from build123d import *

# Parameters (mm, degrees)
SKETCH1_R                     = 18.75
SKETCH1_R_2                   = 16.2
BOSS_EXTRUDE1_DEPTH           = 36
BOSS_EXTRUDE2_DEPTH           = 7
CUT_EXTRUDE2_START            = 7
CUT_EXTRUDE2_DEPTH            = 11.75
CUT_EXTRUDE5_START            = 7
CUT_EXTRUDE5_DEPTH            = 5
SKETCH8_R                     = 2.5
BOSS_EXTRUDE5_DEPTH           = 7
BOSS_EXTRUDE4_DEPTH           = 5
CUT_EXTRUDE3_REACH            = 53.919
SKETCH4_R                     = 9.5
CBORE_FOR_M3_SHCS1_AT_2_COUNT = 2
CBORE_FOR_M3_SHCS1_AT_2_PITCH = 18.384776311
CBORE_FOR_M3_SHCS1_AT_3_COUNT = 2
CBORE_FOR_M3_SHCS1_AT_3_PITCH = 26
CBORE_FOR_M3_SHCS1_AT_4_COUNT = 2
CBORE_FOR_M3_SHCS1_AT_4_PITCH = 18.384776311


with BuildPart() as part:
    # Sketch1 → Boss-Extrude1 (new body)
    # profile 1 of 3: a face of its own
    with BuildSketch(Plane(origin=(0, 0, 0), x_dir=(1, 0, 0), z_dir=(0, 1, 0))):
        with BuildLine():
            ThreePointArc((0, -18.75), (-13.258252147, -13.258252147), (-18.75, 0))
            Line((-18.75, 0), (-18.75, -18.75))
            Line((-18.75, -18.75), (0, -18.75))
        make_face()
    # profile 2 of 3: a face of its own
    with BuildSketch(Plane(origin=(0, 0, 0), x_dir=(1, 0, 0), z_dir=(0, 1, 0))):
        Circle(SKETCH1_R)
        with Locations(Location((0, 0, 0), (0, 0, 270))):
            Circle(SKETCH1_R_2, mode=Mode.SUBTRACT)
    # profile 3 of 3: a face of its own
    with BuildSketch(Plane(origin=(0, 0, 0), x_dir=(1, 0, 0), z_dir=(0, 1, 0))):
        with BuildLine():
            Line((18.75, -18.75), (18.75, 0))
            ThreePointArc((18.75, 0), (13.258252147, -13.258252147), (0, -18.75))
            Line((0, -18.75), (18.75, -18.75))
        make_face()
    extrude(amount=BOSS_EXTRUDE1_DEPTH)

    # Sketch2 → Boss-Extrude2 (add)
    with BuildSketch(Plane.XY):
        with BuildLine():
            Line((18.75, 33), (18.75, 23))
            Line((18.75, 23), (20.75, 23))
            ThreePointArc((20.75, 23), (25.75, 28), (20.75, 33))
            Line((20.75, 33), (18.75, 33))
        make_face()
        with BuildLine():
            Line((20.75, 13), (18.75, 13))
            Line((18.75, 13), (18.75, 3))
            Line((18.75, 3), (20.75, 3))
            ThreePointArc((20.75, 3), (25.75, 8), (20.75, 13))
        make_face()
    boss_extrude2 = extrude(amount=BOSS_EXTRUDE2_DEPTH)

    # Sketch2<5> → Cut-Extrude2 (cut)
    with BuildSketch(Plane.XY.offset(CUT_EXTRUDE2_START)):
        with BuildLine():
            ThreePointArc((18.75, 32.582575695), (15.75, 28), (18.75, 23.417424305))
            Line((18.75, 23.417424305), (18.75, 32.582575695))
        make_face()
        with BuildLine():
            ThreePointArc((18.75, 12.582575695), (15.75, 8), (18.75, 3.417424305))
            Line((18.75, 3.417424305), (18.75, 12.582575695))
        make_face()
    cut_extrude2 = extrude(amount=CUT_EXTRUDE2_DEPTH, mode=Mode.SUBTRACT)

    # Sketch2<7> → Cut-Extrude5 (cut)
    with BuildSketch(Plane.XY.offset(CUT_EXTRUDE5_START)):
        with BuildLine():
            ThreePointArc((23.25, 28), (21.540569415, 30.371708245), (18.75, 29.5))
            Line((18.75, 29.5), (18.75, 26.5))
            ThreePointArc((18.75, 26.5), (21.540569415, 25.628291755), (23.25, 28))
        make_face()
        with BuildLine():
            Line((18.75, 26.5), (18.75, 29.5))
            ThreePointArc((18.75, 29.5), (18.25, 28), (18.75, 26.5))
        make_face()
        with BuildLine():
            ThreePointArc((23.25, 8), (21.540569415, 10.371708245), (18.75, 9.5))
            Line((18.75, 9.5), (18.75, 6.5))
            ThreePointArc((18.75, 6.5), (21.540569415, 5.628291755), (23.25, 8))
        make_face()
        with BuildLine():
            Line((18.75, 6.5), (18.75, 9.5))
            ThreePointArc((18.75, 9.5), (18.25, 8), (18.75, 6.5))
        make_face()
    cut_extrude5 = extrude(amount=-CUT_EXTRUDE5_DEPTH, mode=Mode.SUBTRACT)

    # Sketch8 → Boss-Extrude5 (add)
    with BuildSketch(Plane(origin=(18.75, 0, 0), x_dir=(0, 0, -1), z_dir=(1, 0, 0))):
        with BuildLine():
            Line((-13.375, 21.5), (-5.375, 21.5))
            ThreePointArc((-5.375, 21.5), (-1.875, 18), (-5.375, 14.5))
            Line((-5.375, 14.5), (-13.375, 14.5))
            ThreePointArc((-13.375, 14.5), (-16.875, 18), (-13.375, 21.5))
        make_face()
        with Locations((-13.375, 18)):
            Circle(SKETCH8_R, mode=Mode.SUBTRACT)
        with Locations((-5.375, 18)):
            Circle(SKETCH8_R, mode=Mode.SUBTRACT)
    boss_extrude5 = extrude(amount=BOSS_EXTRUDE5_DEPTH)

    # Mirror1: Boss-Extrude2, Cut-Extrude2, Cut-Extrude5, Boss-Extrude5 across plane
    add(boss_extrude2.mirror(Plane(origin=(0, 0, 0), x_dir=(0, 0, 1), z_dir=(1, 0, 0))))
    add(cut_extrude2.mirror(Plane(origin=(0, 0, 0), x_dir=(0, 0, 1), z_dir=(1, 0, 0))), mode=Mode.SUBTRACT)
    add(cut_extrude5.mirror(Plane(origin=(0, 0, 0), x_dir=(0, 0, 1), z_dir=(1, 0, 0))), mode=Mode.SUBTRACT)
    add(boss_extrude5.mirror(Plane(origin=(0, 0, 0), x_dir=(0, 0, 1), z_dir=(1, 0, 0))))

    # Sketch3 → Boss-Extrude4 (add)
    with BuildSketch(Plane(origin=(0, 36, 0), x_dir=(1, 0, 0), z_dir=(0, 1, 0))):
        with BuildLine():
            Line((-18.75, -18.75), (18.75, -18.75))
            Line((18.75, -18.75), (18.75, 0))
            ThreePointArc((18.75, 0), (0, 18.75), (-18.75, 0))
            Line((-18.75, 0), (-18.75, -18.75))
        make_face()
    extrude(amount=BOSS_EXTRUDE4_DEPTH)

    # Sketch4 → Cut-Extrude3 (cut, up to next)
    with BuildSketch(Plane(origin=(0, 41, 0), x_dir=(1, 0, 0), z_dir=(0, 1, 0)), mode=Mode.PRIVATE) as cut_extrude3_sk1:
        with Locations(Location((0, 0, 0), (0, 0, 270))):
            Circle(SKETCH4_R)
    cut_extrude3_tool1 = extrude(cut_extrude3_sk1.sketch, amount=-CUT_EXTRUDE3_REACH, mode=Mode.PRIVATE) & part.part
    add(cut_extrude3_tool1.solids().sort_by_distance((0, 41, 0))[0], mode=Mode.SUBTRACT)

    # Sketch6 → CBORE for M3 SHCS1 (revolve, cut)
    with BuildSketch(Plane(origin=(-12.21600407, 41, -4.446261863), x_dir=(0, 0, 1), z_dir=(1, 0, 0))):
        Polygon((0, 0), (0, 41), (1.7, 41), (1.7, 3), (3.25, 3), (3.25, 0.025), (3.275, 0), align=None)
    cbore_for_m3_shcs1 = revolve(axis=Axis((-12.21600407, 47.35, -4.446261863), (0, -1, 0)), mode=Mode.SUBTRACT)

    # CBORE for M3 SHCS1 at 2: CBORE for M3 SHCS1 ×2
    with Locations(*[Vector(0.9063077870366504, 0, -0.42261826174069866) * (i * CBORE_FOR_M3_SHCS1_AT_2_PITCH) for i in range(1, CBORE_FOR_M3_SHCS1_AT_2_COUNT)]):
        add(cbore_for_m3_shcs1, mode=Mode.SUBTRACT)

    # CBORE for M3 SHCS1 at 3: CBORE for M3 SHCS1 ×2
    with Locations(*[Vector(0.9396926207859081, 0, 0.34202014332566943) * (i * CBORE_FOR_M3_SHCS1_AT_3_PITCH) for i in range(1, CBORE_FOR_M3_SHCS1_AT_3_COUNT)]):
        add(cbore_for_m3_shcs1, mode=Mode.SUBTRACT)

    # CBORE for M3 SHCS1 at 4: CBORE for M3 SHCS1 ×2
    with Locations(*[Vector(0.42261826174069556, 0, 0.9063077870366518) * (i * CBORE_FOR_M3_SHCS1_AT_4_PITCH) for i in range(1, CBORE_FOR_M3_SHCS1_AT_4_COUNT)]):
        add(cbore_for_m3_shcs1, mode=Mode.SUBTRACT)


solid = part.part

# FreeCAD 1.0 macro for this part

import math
import FreeCAD as App
import Part
import Sketcher
Q = App.Units.Quantity

doc = App.newDocument("Part")
body = doc.addObject("PartDesign::Body", "Body")

sketch1 = doc.addObject("Sketcher::SketchObject", "Sketch")
body.addObject(sketch1)
sketch1.AttachmentSupport = (doc.XZ_Plane, [""])
sketch1.MapMode = "FlatFace"
sketch1.addGeometry(Part.LineSegment(App.Vector(-19, 0, 0), App.Vector(-19, 19, 0)), False)
sketch1.addGeometry(Part.LineSegment(App.Vector(-19, 19, 0), App.Vector(19, 19, 0)), False)
sketch1.addGeometry(Part.LineSegment(App.Vector(19, 19, 0), App.Vector(19, 0, 0)), False)
sketch1.addGeometry(Part.ArcOfCircle(Part.Circle(App.Vector(0, 0, 0), App.Vector(0, 0, 1), 19), math.radians(180), math.radians(360)), False)
sketch1.addGeometry(Part.Circle(App.Vector(0, 0, 0), App.Vector(0, 0, 1), 16), False)
sketch1.addConstraint(Sketcher.Constraint("Coincident", 0, 2, 1, 1))
sketch1.addConstraint(Sketcher.Constraint("Coincident", 1, 2, 2, 1))
sketch1.addConstraint(Sketcher.Constraint("Tangent", 2, 2, 3, 2))
sketch1.addConstraint(Sketcher.Constraint("Tangent", 3, 1, 0, 1))
sketch1.addConstraint(Sketcher.Constraint("Vertical", 0))
sketch1.addConstraint(Sketcher.Constraint("Horizontal", 1))
sketch1.addConstraint(Sketcher.Constraint("Vertical", 2))
sketch1.addConstraint(Sketcher.Constraint("Coincident", 3, 3, -1, 1))
sketch1.addConstraint(Sketcher.Constraint("Coincident", 4, 3, -1, 1))
sketch1.addConstraint(Sketcher.Constraint("Diameter", 4, 32.4))
sketch1.addConstraint(Sketcher.Constraint("Radius", 3, 18.75))
sketch1.addConstraint(Sketcher.Constraint("DistanceY", 0, 1, 0, 2, 18.75))
pad1 = doc.addObject("PartDesign::Pad", "Pad")
body.addObject(pad1)
pad1.Profile = sketch1
pad1.Length = 36
pad1.Reversed = True

sketch2 = doc.addObject("Sketcher::SketchObject", "Sketch001")
body.addObject(sketch2)
sketch2.AttachmentSupport = (doc.XY_Plane, [""])
sketch2.MapMode = "FlatFace"
sketch2.addGeometry(Part.LineSegment(App.Vector(18.8, 33, 0), App.Vector(18.8, 23, 0)), False)
sketch2.addGeometry(Part.LineSegment(App.Vector(18.8, 23, 0), App.Vector(20.8, 23, 0)), False)
sketch2.addGeometry(Part.ArcOfCircle(Part.Circle(App.Vector(20.8, 28, 0), App.Vector(0, 0, 1), 5), math.radians(-90), math.radians(90)), False)
sketch2.addGeometry(Part.LineSegment(App.Vector(20.8, 33, 0), App.Vector(18.8, 33, 0)), False)
sketch2.addGeometry(Part.LineSegment(App.Vector(20.8, 13, 0), App.Vector(18.8, 13, 0)), False)
sketch2.addGeometry(Part.LineSegment(App.Vector(18.8, 13, 0), App.Vector(18.8, 3, 0)), False)
sketch2.addGeometry(Part.LineSegment(App.Vector(18.8, 3, 0), App.Vector(20.8, 3, 0)), False)
sketch2.addGeometry(Part.ArcOfCircle(Part.Circle(App.Vector(20.8, 8, 0), App.Vector(0, 0, 1), 5), math.radians(-90), math.radians(90)), False)
sketch2.addConstraint(Sketcher.Constraint("Coincident", 0, 2, 1, 1))
sketch2.addConstraint(Sketcher.Constraint("Tangent", 1, 2, 2, 1))
sketch2.addConstraint(Sketcher.Constraint("Tangent", 2, 2, 3, 1))
sketch2.addConstraint(Sketcher.Constraint("Coincident", 3, 2, 0, 1))
sketch2.addConstraint(Sketcher.Constraint("Coincident", 4, 2, 5, 1))
sketch2.addConstraint(Sketcher.Constraint("Coincident", 5, 2, 6, 1))
sketch2.addConstraint(Sketcher.Constraint("Tangent", 6, 2, 7, 1))
sketch2.addConstraint(Sketcher.Constraint("Tangent", 7, 2, 4, 1))
sketch2.addConstraint(Sketcher.Constraint("Vertical", 0))
sketch2.addConstraint(Sketcher.Constraint("Horizontal", 1))
sketch2.addConstraint(Sketcher.Constraint("Horizontal", 3))
sketch2.addConstraint(Sketcher.Constraint("Horizontal", 4))
sketch2.addConstraint(Sketcher.Constraint("Vertical", 5))
sketch2.addConstraint(Sketcher.Constraint("Horizontal", 6))
sketch2.addConstraint(Sketcher.Constraint("Equal", 2, 7))
sketch2.addConstraint(Sketcher.Constraint("Vertical", 2, 3, 7, 3))
sketch2.addConstraint(Sketcher.Constraint("Vertical", 3, 2, 4, 2))
sketch2.addConstraint(Sketcher.Constraint("Radius", 2, 5.0))
sketch2.addConstraint(Sketcher.Constraint("DistanceX", 1, 1, 1, 2, 2.0))
sketch2.addConstraint(Sketcher.Constraint("DistanceY", -1, 1, 2, 3, 28.0))
sketch2.addConstraint(Sketcher.Constraint("DistanceY", -1, 1, 7, 3, 8.0))
sketch2.addConstraint(Sketcher.Constraint("DistanceX", -1, 1, 2, 3, 20.75))
pad2 = doc.addObject("PartDesign::Pad", "Pad001")
body.addObject(pad2)
pad2.Profile = sketch2
pad2.Length = 7

sketch3 = doc.addObject("Sketcher::SketchObject", "Sketch002")
body.addObject(sketch3)
sketch3.AttachmentSupport = (doc.XY_Plane, [""])
sketch3.MapMode = "FlatFace"
sketch3.AttachmentOffset = App.Placement(App.Vector(0, 0, 7), App.Rotation())
sketch3.addGeometry(Part.ArcOfCircle(Part.Circle(App.Vector(21, 28, 0), App.Vector(0, 0, 1), 5), math.radians(114), math.radians(246)), False)
sketch3.addGeometry(Part.LineSegment(App.Vector(19, 23, 0), App.Vector(19, 33, 0)), False)
sketch3.addGeometry(Part.ArcOfCircle(Part.Circle(App.Vector(21, 8, 0), App.Vector(0, 0, 1), 5), math.radians(114), math.radians(246)), False)
sketch3.addGeometry(Part.LineSegment(App.Vector(19, 3, 0), App.Vector(19, 13, 0)), False)
sketch3.addConstraint(Sketcher.Constraint("Coincident", 0, 1, 1, 2))
sketch3.addConstraint(Sketcher.Constraint("Coincident", 1, 1, 0, 2))
sketch3.addConstraint(Sketcher.Constraint("Coincident", 2, 1, 3, 2))
sketch3.addConstraint(Sketcher.Constraint("Coincident", 3, 1, 2, 2))
sketch3.addConstraint(Sketcher.Constraint("Vertical", 1))
sketch3.addConstraint(Sketcher.Constraint("Vertical", 3))
sketch3.addConstraint(Sketcher.Constraint("Equal", 0, 2))
sketch3.addConstraint(Sketcher.Constraint("Vertical", 0, 3, 2, 3))
sketch3.addConstraint(Sketcher.Constraint("Vertical", 1, 1, 2, 1))
sketch3.addConstraint(Sketcher.Constraint("Radius", 0, 5.0))
sketch3.addConstraint(Sketcher.Constraint("DistanceY", -1, 1, 0, 3, 28.0))
sketch3.addConstraint(Sketcher.Constraint("DistanceY", -1, 1, 2, 3, 8.0))
sketch3.addConstraint(Sketcher.Constraint("DistanceX", 0, 1, 0, 3, 2.0))
sketch3.addConstraint(Sketcher.Constraint("DistanceX", -1, 1, 0, 3, 20.75))
pocket1 = doc.addObject("PartDesign::Pocket", "Pocket")
body.addObject(pocket1)
pocket1.Profile = sketch3
pocket1.Length = 11.75
pocket1.Reversed = True

sketch4 = doc.addObject("Sketcher::SketchObject", "Sketch003")
body.addObject(sketch4)
sketch4.AttachmentSupport = (doc.XY_Plane, [""])
sketch4.MapMode = "FlatFace"
sketch4.AttachmentOffset = App.Placement(App.Vector(0, 0, 7), App.Rotation())
sketch4.addGeometry(Part.ArcOfCircle(Part.Circle(App.Vector(20.8, 28, 0), App.Vector(0, 0, 1), 2.5), math.radians(0), math.radians(143)), False)
sketch4.addGeometry(Part.ArcOfCircle(Part.Circle(App.Vector(20.8, 28, 0), App.Vector(0, 0, 1), 2.5), math.radians(143), math.radians(217)), False)
sketch4.addGeometry(Part.ArcOfCircle(Part.Circle(App.Vector(20.8, 28, 0), App.Vector(0, 0, 1), 2.5), math.radians(-143), math.radians(0)), False)
sketch4.addGeometry(Part.ArcOfCircle(Part.Circle(App.Vector(20.8, 8, 0), App.Vector(0, 0, 1), 2.5), math.radians(0), math.radians(143)), False)
sketch4.addGeometry(Part.ArcOfCircle(Part.Circle(App.Vector(20.8, 8, 0), App.Vector(0, 0, 1), 2.5), math.radians(143), math.radians(217)), False)
sketch4.addGeometry(Part.ArcOfCircle(Part.Circle(App.Vector(20.8, 8, 0), App.Vector(0, 0, 1), 2.5), math.radians(-143), math.radians(0)), False)
sketch4.addConstraint(Sketcher.Constraint("Tangent", 0, 2, 1, 1))
sketch4.addConstraint(Sketcher.Constraint("Tangent", 1, 2, 2, 1))
sketch4.addConstraint(Sketcher.Constraint("Tangent", 2, 2, 0, 1))
sketch4.addConstraint(Sketcher.Constraint("Tangent", 3, 2, 4, 1))
sketch4.addConstraint(Sketcher.Constraint("Tangent", 4, 2, 5, 1))
sketch4.addConstraint(Sketcher.Constraint("Tangent", 5, 2, 3, 1))
sketch4.addConstraint(Sketcher.Constraint("Equal", 2, 3))
sketch4.addConstraint(Sketcher.Constraint("Horizontal", 1, 3, 2, 2))
sketch4.addConstraint(Sketcher.Constraint("Horizontal", 4, 3, 5, 2))
sketch4.addConstraint(Sketcher.Constraint("Vertical", 2, 3, 3, 3))
sketch4.addConstraint(Sketcher.Constraint("Vertical", 0, 2, 1, 2))
sketch4.addConstraint(Sketcher.Constraint("Vertical", 1, 2, 3, 2))
sketch4.addConstraint(Sketcher.Constraint("Vertical", 3, 2, 4, 2))
sketch4.addConstraint(Sketcher.Constraint("Radius", 0, 2.5))
sketch4.addConstraint(Sketcher.Constraint("DistanceY", -1, 1, 0, 3, 28.0))
sketch4.addConstraint(Sketcher.Constraint("DistanceY", -1, 1, 3, 3, 8.0))
sketch4.addConstraint(Sketcher.Constraint("DistanceX", 0, 2, 0, 3, 2.0))
sketch4.addConstraint(Sketcher.Constraint("DistanceX", -1, 1, 0, 3, 20.75))
pocket2 = doc.addObject("PartDesign::Pocket", "Pocket001")
body.addObject(pocket2)
pocket2.Profile = sketch4
pocket2.Length = 5

sketch5 = doc.addObject("Sketcher::SketchObject", "Sketch004")
body.addObject(sketch5)
sketch5.AttachmentSupport = (doc.YZ_Plane, [""])
sketch5.MapMode = "FlatFace"
sketch5.AttachmentOffset = App.Placement(App.Vector(0, 0, 18.75), App.Rotation())
sketch5.addGeometry(Part.LineSegment(App.Vector(21.5, 5.4, 0), App.Vector(21.5, 13.4, 0)), False)
sketch5.addGeometry(Part.ArcOfCircle(Part.Circle(App.Vector(18, 13.4, 0), App.Vector(0, 0, 1), 3.5), math.radians(0), math.radians(180)), False)
sketch5.addGeometry(Part.LineSegment(App.Vector(14.5, 13.4, 0), App.Vector(14.5, 5.4, 0)), False)
sketch5.addGeometry(Part.ArcOfCircle(Part.Circle(App.Vector(18, 5.4, 0), App.Vector(0, 0, 1), 3.5), math.radians(180), math.radians(360)), False)
sketch5.addGeometry(Part.Circle(App.Vector(18, 5.4, 0), App.Vector(0, 0, 1), 2.5), False)
sketch5.addGeometry(Part.Circle(App.Vector(18, 13.4, 0), App.Vector(0, 0, 1), 2.5), False)
sketch5.addConstraint(Sketcher.Constraint("Tangent", 0, 2, 1, 1))
sketch5.addConstraint(Sketcher.Constraint("Tangent", 1, 2, 2, 1))
sketch5.addConstraint(Sketcher.Constraint("Tangent", 2, 2, 3, 1))
sketch5.addConstraint(Sketcher.Constraint("Tangent", 3, 2, 0, 1))
sketch5.addConstraint(Sketcher.Constraint("Vertical", 0))
sketch5.addConstraint(Sketcher.Constraint("Vertical", 2))
sketch5.addConstraint(Sketcher.Constraint("Coincident", 4, 3, 3, 3))
sketch5.addConstraint(Sketcher.Constraint("Coincident", 5, 3, 1, 3))
sketch5.addConstraint(Sketcher.Constraint("Equal", 4, 5))
sketch5.addConstraint(Sketcher.Constraint("Diameter", 4, 5.0))
sketch5.addConstraint(Sketcher.Constraint("Radius", 1, 3.5))
sketch5.addConstraint(Sketcher.Constraint("DistanceY", 0, 1, 0, 2, 8.0))
sketch5.addConstraint(Sketcher.Constraint("DistanceX", -1, 1, 1, 3, 18.0))
sketch5.addConstraint(Sketcher.Constraint("DistanceY", -1, 1, 1, 3, 13.375))
pad3 = doc.addObject("PartDesign::Pad", "Pad002")
body.addObject(pad3)
pad3.Profile = sketch5
pad3.Length = 7
doc.recompute()

mirrored = doc.addObject("PartDesign::Mirrored", "Mirrored")
body.addObject(mirrored)
mirrored.Originals = [pad2, pocket1, pocket2, pad3]
mirrored.MirrorPlane = (doc.YZ_Plane, [""])
body.Tip = mirrored

sketch6 = doc.addObject("Sketcher::SketchObject", "Sketch005")
body.addObject(sketch6)
sketch6.AttachmentSupport = (doc.XZ_Plane, [""])
sketch6.MapMode = "FlatFace"
sketch6.AttachmentOffset = App.Placement(App.Vector(0, 0, -36), App.Rotation())
sketch6.addGeometry(Part.LineSegment(App.Vector(-19, 19, 0), App.Vector(19, 19, 0)), False)
sketch6.addGeometry(Part.LineSegment(App.Vector(19, 19, 0), App.Vector(19, 0, 0)), False)
sketch6.addGeometry(Part.ArcOfCircle(Part.Circle(App.Vector(0, 0, 0), App.Vector(0, 0, 1), 19), math.radians(180), math.radians(360)), False)
sketch6.addGeometry(Part.LineSegment(App.Vector(-19, 0, 0), App.Vector(-19, 19, 0)), False)
sketch6.addConstraint(Sketcher.Constraint("Coincident", 0, 2, 1, 1))
sketch6.addConstraint(Sketcher.Constraint("Tangent", 1, 2, 2, 2))
sketch6.addConstraint(Sketcher.Constraint("Tangent", 2, 1, 3, 1))
sketch6.addConstraint(Sketcher.Constraint("Coincident", 3, 2, 0, 1))
sketch6.addConstraint(Sketcher.Constraint("Horizontal", 0))
sketch6.addConstraint(Sketcher.Constraint("Vertical", 1))
sketch6.addConstraint(Sketcher.Constraint("Vertical", 3))
sketch6.addConstraint(Sketcher.Constraint("Coincident", 2, 3, -1, 1))
sketch6.addConstraint(Sketcher.Constraint("Radius", 2, 18.75))
sketch6.addConstraint(Sketcher.Constraint("DistanceY", 1, 2, 1, 1, 18.75))
pad4 = doc.addObject("PartDesign::Pad", "Pad003")
body.addObject(pad4)
pad4.Profile = sketch6
pad4.Length = 5
pad4.Reversed = True

sketch7 = doc.addObject("Sketcher::SketchObject", "Sketch006")
body.addObject(sketch7)
sketch7.AttachmentSupport = (doc.XZ_Plane, [""])
sketch7.MapMode = "FlatFace"
sketch7.AttachmentOffset = App.Placement(App.Vector(0, 0, -41), App.Rotation())
sketch7.addGeometry(Part.Circle(App.Vector(0, 0, 0), App.Vector(0, 0, 1), 10), False)
sketch7.addConstraint(Sketcher.Constraint("Coincident", 0, 3, -1, 1))
sketch7.addConstraint(Sketcher.Constraint("Diameter", 0, 19.0))
pocket3 = doc.addObject("PartDesign::Pocket", "Pocket002")
body.addObject(pocket3)
pocket3.Profile = sketch7
pocket3.Type = "UpToFirst"
pocket3.Reversed = True

sketch8 = doc.addObject("Sketcher::SketchObject", "Sketch007")
body.addObject(sketch8)
sketch8.AttachmentSupport = (doc.YZ_Plane, [""])
sketch8.MapMode = "FlatFace"
sketch8.AttachmentOffset = App.Placement(App.Vector(0, 0, -12.216004), App.Rotation())
sketch8.addGeometry(Part.LineSegment(App.Vector(0, -4.446, 0), App.Vector(41, -4.446, 0)), False)
sketch8.addGeometry(Part.LineSegment(App.Vector(41, -4.446, 0), App.Vector(41, -1.171, 0)), False)
sketch8.addGeometry(Part.LineSegment(App.Vector(41, -1.171, 0), App.Vector(40.975, -1.196, 0)), False)
sketch8.addGeometry(Part.LineSegment(App.Vector(40.975, -1.196, 0), App.Vector(38, -1.196, 0)), False)
sketch8.addGeometry(Part.LineSegment(App.Vector(38, -1.196, 0), App.Vector(38, -2.746, 0)), False)
sketch8.addGeometry(Part.LineSegment(App.Vector(38, -2.746, 0), App.Vector(0, -2.746, 0)), False)
sketch8.addGeometry(Part.LineSegment(App.Vector(0, -2.746, 0), App.Vector(0, -4.446, 0)), False)
sketch8.addGeometry(Part.LineSegment(App.Vector(41, -4.446, 0), App.Vector(0, -4.446, 0)), True)
sketch8.addConstraint(Sketcher.Constraint("Coincident", 0, 2, 1, 1))
sketch8.addConstraint(Sketcher.Constraint("Coincident", 1, 2, 2, 1))
sketch8.addConstraint(Sketcher.Constraint("Coincident", 2, 2, 3, 1))
sketch8.addConstraint(Sketcher.Constraint("Coincident", 3, 2, 4, 1))
sketch8.addConstraint(Sketcher.Constraint("Coincident", 4, 2, 5, 1))
sketch8.addConstraint(Sketcher.Constraint("Coincident", 5, 2, 6, 1))
sketch8.addConstraint(Sketcher.Constraint("Coincident", 6, 2, 0, 1))
sketch8.addConstraint(Sketcher.Constraint("Horizontal", 0))
sketch8.addConstraint(Sketcher.Constraint("Vertical", 1))
sketch8.addConstraint(Sketcher.Constraint("Horizontal", 3))
sketch8.addConstraint(Sketcher.Constraint("Vertical", 4))
sketch8.addConstraint(Sketcher.Constraint("Horizontal", 5))
sketch8.addConstraint(Sketcher.Constraint("Vertical", 6))
sketch8.addConstraint(Sketcher.Constraint("Horizontal", 7))
sketch8.addConstraint(Sketcher.Constraint("Coincident", 7, 1, 0, 2))
sketch8.addConstraint(Sketcher.Constraint("PointOnObject", 5, 2, -2))
sketch8.addConstraint(Sketcher.Constraint("PointOnObject", 7, 2, -2))
sketch8.addConstraint(Sketcher.Constraint("DistanceX", 0, 1, 0, 2, 41.0))
sketch8.addConstraint(Sketcher.Constraint("DistanceX", 5, 2, 5, 1, 38.0))
sketch8.addConstraint(Sketcher.Constraint("Angle", 2, Q("-135 deg")))
sketch8.addConstraint(Sketcher.Constraint("DistanceY", 6, 2, 6, 1, 1.7))
sketch8.addConstraint(Sketcher.Constraint("DistanceY", 4, 2, 4, 1, 1.55))
sketch8.addConstraint(Sketcher.Constraint("DistanceX", 3, 2, 3, 1, 2.975))
sketch8.addConstraint(Sketcher.Constraint("DistanceY", 0, 2, -1, 1, 4.446262))
groove = doc.addObject("PartDesign::Groove", "Groove")
body.addObject(groove)
groove.Profile = sketch8
groove.ReferenceAxis = (sketch8, ["Axis0"])
groove.Angle = 360
doc.recompute()

datumline = doc.addObject("PartDesign::Line", "DatumLine")
body.addObject(datumline)
datumline.Placement = App.Placement(App.Vector(0, 0, 0), App.Rotation(App.Vector(0, 0, 1), App.Vector(0.906307787, 0, -0.422618262)))
linearpattern = doc.addObject("PartDesign::LinearPattern", "LinearPattern")
body.addObject(linearpattern)
linearpattern.Originals = [groove]
linearpattern.Direction = (datumline, [""])
linearpattern.Mode = "offset"
linearpattern.Offset = 18.384776
linearpattern.Occurrences = 2
body.Tip = linearpattern
doc.recompute()

datumline2 = doc.addObject("PartDesign::Line", "DatumLine001")
body.addObject(datumline2)
datumline2.Placement = App.Placement(App.Vector(0, 0, 0), App.Rotation(App.Vector(0, 0, 1), App.Vector(0.939692621, 0, 0.342020143)))
linearpattern2 = doc.addObject("PartDesign::LinearPattern", "LinearPattern001")
body.addObject(linearpattern2)
linearpattern2.Originals = [groove]
linearpattern2.Direction = (datumline2, [""])
linearpattern2.Mode = "offset"
linearpattern2.Offset = 26
linearpattern2.Occurrences = 2
body.Tip = linearpattern2
doc.recompute()

datumline3 = doc.addObject("PartDesign::Line", "DatumLine002")
body.addObject(datumline3)
datumline3.Placement = App.Placement(App.Vector(0, 0, 0), App.Rotation(App.Vector(0, 0, 1), App.Vector(0.422618262, 0, 0.906307787)))
linearpattern3 = doc.addObject("PartDesign::LinearPattern", "LinearPattern002")
body.addObject(linearpattern3)
linearpattern3.Originals = [groove]
linearpattern3.Direction = (datumline3, [""])
linearpattern3.Mode = "offset"
linearpattern3.Offset = 18.384776
linearpattern3.Occurrences = 2
body.Tip = linearpattern3

doc.recompute()
